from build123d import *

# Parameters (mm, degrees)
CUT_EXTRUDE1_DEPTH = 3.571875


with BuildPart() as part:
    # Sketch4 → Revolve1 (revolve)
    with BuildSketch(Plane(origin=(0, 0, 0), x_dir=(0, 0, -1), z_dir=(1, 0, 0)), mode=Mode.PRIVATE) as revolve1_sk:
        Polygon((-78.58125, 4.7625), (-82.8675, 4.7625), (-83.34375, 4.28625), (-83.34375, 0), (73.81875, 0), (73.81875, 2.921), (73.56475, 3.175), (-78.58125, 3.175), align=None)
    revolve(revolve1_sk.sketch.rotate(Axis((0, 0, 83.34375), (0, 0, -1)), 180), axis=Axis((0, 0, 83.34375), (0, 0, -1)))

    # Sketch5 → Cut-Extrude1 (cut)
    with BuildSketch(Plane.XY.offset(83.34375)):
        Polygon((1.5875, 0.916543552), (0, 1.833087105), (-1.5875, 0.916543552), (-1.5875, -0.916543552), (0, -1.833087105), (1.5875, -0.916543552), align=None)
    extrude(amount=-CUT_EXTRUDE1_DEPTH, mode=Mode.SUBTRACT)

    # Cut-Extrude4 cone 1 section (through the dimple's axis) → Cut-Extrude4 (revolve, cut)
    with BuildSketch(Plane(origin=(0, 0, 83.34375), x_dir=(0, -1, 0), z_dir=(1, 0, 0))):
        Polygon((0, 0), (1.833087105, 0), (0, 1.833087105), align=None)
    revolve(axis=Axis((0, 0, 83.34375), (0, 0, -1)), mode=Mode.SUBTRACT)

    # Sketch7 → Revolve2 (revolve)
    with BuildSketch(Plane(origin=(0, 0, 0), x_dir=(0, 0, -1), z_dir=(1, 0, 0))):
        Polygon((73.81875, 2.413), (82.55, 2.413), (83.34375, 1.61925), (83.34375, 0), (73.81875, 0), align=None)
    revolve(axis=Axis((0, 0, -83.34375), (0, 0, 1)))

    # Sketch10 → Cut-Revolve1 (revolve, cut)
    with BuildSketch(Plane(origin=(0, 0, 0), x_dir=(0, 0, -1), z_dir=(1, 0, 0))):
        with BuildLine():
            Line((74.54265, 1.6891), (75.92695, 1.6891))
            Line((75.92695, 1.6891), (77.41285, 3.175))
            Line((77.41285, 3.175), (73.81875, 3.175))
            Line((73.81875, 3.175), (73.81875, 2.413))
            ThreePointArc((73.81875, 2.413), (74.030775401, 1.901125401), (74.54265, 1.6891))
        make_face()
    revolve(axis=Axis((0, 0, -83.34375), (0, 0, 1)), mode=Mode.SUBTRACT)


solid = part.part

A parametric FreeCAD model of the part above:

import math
import FreeCAD as App
import Part
import Sketcher
Q = App.Units.Quantity

doc = App.newDocument("Part")
body = doc.addObject("PartDesign::Body", "Body")

# Sketch on YZ plane
sketch1 = body.newObject("Sketcher::SketchObject", "Sketch")
sketch1.AttachmentSupport = (doc.getObject("YZ_Plane"), [""])
sketch1.MapMode = "FlatFace"
sketch1.addGeometry(Part.LineSegment(App.Vector(4.76, 78.58, 0), App.Vector(4.76, 82.87, 0)), False)
sketch1.addGeometry(Part.LineSegment(App.Vector(4.76, 82.87, 0), App.Vector(4.29, 83.34, 0)), False)
sketch1.addGeometry(Part.LineSegment(App.Vector(4.29, 83.34, 0), App.Vector(0, 83.34, 0)), False)
sketch1.addGeometry(Part.LineSegment(App.Vector(0, 83.34, 0), App.Vector(0, -73.82, 0)), False)
sketch1.addGeometry(Part.LineSegment(App.Vector(0, -73.82, 0), App.Vector(2.92, -73.82, 0)), False)
sketch1.addGeometry(Part.LineSegment(App.Vector(2.92, -73.82, 0), App.Vector(3.17, -73.56, 0)), False)
sketch1.addGeometry(Part.LineSegment(App.Vector(3.17, -73.56, 0), App.Vector(3.17, 78.58, 0)), False)
sketch1.addGeometry(Part.LineSegment(App.Vector(3.17, 78.58, 0), App.Vector(4.76, 78.58, 0)), False)
sketch1.addConstraint(Sketcher.Constraint("Coincident", 0, 2, 1, 1))
sketch1.addConstraint(Sketcher.Constraint("Coincident", 1, 2, 2, 1))
sketch1.addConstraint(Sketcher.Constraint("Coincident", 2, 2, 3, 1))
sketch1.addConstraint(Sketcher.Constraint("Coincident", 3, 2, 4, 1))
sketch1.addConstraint(Sketcher.Constraint("Coincident", 4, 2, 5, 1))
sketch1.addConstraint(Sketcher.Constraint("Coincident", 5, 2, 6, 1))
sketch1.addConstraint(Sketcher.Constraint("Coincident", 6, 2, 7, 1))
sketch1.addConstraint(Sketcher.Constraint("Coincident", 7, 2, 0, 1))
sketch1.addConstraint(Sketcher.Constraint("Vertical", 0))
sketch1.addConstraint(Sketcher.Constraint("Horizontal", 2))
sketch1.addConstraint(Sketcher.Constraint("Vertical", 3))
sketch1.addConstraint(Sketcher.Constraint("Horizontal", 4))
sketch1.addConstraint(Sketcher.Constraint("Vertical", 6))
sketch1.addConstraint(Sketcher.Constraint("Horizontal", 7))
sketch1.addConstraint(Sketcher.Constraint("PointOnObject", 2, 2, -2))
sketch1.addConstraint(Sketcher.Constraint("Perpendicular", 1, 5))
sketch1.addConstraint(Sketcher.Constraint("Equal", 2, 0))
sketch1.addConstraint(Sketcher.Constraint("Angle", 1, Q("135 deg")))
sketch1.addConstraint(Sketcher.Constraint("DistanceY", 4, 2, 6, 2, Q("6 in")))
sketch1.addConstraint(Sketcher.Constraint("DistanceY", 6, 1, 6, 2, Q("5.99 in")))
sketch1.addConstraint(Sketcher.Constraint("DistanceX", 4, 1, 4, 2, Q("0.115 in")))
sketch1.addConstraint(Sketcher.Constraint("DistanceX", 7, 1, 7, 2, Q("0.0625 in")))
sketch1.addConstraint(Sketcher.Constraint("DistanceY", -1, 1, 1, 2, Q("3.28125 in")))
sketch1.addConstraint(Sketcher.Constraint("DistanceY", -1, 1, 0, 2, Q("3.2625 in")))
revolution = body.newObject("PartDesign::Revolution", "Revolution")
revolution.Profile = sketch1
revolution.ReferenceAxis = (sketch1, ["V_Axis"])
revolution.Angle = 360

# Sketch on XY plane
sketch2 = body.newObject("Sketcher::SketchObject", "Sketch001")
sketch2.AttachmentSupport = (doc.getObject("XY_Plane"), [""])
sketch2.MapMode = "FlatFace"
sketch2.AttachmentOffset = App.Placement(App.Vector(0, 0, 3.28125 * 25.4), App.Rotation())
sketch2.addGeometry(Part.LineSegment(App.Vector(1.6, 0.9, 0), App.Vector(0, 1.8, 0)), False)
sketch2.addGeometry(Part.LineSegment(App.Vector(0, 1.8, 0), App.Vector(-1.6, 0.9, 0)), False)
sketch2.addGeometry(Part.LineSegment(App.Vector(-1.6, 0.9, 0), App.Vector(-1.6, -0.9, 0)), False)
sketch2.addGeometry(Part.LineSegment(App.Vector(-1.6, -0.9, 0), App.Vector(0, -1.8, 0)), False)
sketch2.addGeometry(Part.LineSegment(App.Vector(0, -1.8, 0), App.Vector(1.6, -0.9, 0)), False)
sketch2.addGeometry(Part.LineSegment(App.Vector(1.6, -0.9, 0), App.Vector(1.6, 0.9, 0)), False)
sketch2.addConstraint(Sketcher.Constraint("Coincident", 0, 2, 1, 1))
sketch2.addConstraint(Sketcher.Constraint("Coincident", 1, 2, 2, 1))
sketch2.addConstraint(Sketcher.Constraint("Coincident", 2, 2, 3, 1))
sketch2.addConstraint(Sketcher.Constraint("Coincident", 3, 2, 4, 1))
sketch2.addConstraint(Sketcher.Constraint("Coincident", 4, 2, 5, 1))
sketch2.addConstraint(Sketcher.Constraint("Coincident", 5, 2, 0, 1))
sketch2.addConstraint(Sketcher.Constraint("Vertical", 2))
sketch2.addConstraint(Sketcher.Constraint("Vertical", 5))
sketch2.addConstraint(Sketcher.Constraint("Symmetric", 0, 2, 3, 2, -1, 1))
sketch2.addConstraint(Sketcher.Constraint("Symmetric", 1, 2, 4, 2, -1, 1))
sketch2.addConstraint(Sketcher.Constraint("PointOnObject", 0, 2, -2))
sketch2.addConstraint(Sketcher.Constraint("Parallel", 0, 3))
sketch2.addConstraint(Sketcher.Constraint("Horizontal", 2, 2, 4, 2))
sketch2.addConstraint(Sketcher.Constraint("Angle", 0, Q("150 deg")))
sketch2.addConstraint(Sketcher.Constraint("DistanceX", 1, 2, -1, 1, Q("0.0625 in")))
sketch2.addConstraint(Sketcher.Constraint("DistanceY", 2, 2, 2, 1, 1.833087))
pocket1 = body.newObject("PartDesign::Pocket", "Pocket")
pocket1.Profile = sketch2
pocket1.Length = Q("0.140625 in")

# Sketch on YZ plane
sketch3 = body.newObject("Sketcher::SketchObject", "Sketch002")
sketch3.AttachmentSupport = (doc.getObject("YZ_Plane"), [""])
sketch3.MapMode = "FlatFace"
sketch3.addGeometry(Part.LineSegment(App.Vector(0, 83.3, 0), App.Vector(-1.8, 83.3, 0)), False)
sketch3.addGeometry(Part.LineSegment(App.Vector(-1.8, 83.3, 0), App.Vector(0, 81.5, 0)), False)
sketch3.addGeometry(Part.LineSegment(App.Vector(0, 81.5, 0), App.Vector(0, 83.3, 0)), False)
sketch3.addConstraint(Sketcher.Constraint("Coincident", 0, 2, 1, 1))
sketch3.addConstraint(Sketcher.Constraint("Coincident", 1, 2, 2, 1))
sketch3.addConstraint(Sketcher.Constraint("Coincident", 2, 2, 0, 1))
sketch3.addConstraint(Sketcher.Constraint("Horizontal", 0))
sketch3.addConstraint(Sketcher.Constraint("Vertical", 2))
sketch3.addConstraint(Sketcher.Constraint("PointOnObject", 1, 2, -2))
sketch3.addConstraint(Sketcher.Constraint("Equal", 0, 2))
sketch3.addConstraint(Sketcher.Constraint("DistanceY", -1, 1, 0, 2, Q("3.28125 in")))
sketch3.addConstraint(Sketcher.Constraint("DistanceX", 0, 2, 0, 1, 1.833087))
groove = body.newObject("PartDesign::Groove", "Groove")
groove.Profile = sketch3
groove.ReferenceAxis = (sketch3, ["V_Axis"])
groove.Angle = 360

# Sketch on YZ plane
sketch4 = body.newObject("Sketcher::SketchObject", "Sketch003")
sketch4.AttachmentSupport = (doc.getObject("YZ_Plane"), [""])
sketch4.MapMode = "FlatFace"
sketch4.addGeometry(Part.LineSegment(App.Vector(2.4, -82.5, 0), App.Vector(2.4, -73.8, 0)), False)
sketch4.addGeometry(Part.LineSegment(App.Vector(2.4, -73.8, 0), App.Vector(0, -73.8, 0)), False)
sketch4.addGeometry(Part.LineSegment(App.Vector(0, -73.8, 0), App.Vector(0, -83.3, 0)), False)
sketch4.addGeometry(Part.LineSegment(App.Vector(0, -83.3, 0), App.Vector(1.6, -83.3, 0)), False)
sketch4.addGeometry(Part.LineSegment(App.Vector(1.6, -83.3, 0), App.Vector(2.4, -82.5, 0)), False)
sketch4.addConstraint(Sketcher.Constraint("Coincident", 0, 2, 1, 1))
sketch4.addConstraint(Sketcher.Constraint("Coincident", 1, 2, 2, 1))
sketch4.addConstraint(Sketcher.Constraint("Coincident", 2, 2, 3, 1))
sketch4.addConstraint(Sketcher.Constraint("Coincident", 3, 2, 4, 1))
sketch4.addConstraint(Sketcher.Constraint("Coincident", 4, 2, 0, 1))
sketch4.addConstraint(Sketcher.Constraint("Vertical", 0))
sketch4.addConstraint(Sketcher.Constraint("Horizontal", 1))
sketch4.addConstraint(Sketcher.Constraint("Vertical", 2))
sketch4.addConstraint(Sketcher.Constraint("Horizontal", 3))
sketch4.addConstraint(Sketcher.Constraint("PointOnObject", 1, 2, -2))
sketch4.addConstraint(Sketcher.Constraint("Angle", 4, Q("45 deg")))
sketch4.addConstraint(Sketcher.Constraint("DistanceX", 1, 2, 1, 1, Q("0.095 in")))
sketch4.addConstraint(Sketcher.Constraint("DistanceY", 0, 1, 0, 2, Q("0.34375 in")))
sketch4.addConstraint(Sketcher.Constraint("DistanceY", 2, 2, 2, 1, Q("0.375 in")))
sketch4.addConstraint(Sketcher.Constraint("DistanceY", 4, 2, -1, 1, Q("3.25 in")))
revolution2 = body.newObject("PartDesign::Revolution", "Revolution001")
revolution2.Profile = sketch4
revolution2.ReferenceAxis = (sketch4, ["V_Axis"])
revolution2.Angle = 360

# Sketch on YZ plane
sketch5 = body.newObject("Sketcher::SketchObject", "Sketch004")
sketch5.AttachmentSupport = (doc.getObject("YZ_Plane"), [""])
sketch5.MapMode = "FlatFace"
sketch5.addGeometry(Part.LineSegment(App.Vector(1.7, -74.5, 0), App.Vector(1.7, -75.9, 0)), False)
sketch5.addGeometry(Part.LineSegment(App.Vector(1.7, -75.9, 0), App.Vector(3.2, -77.4, 0)), False)
sketch5.addGeometry(Part.LineSegment(App.Vector(3.2, -77.4, 0), App.Vector(3.2, -73.8, 0)), False)
sketch5.addGeometry(Part.LineSegment(App.Vector(3.2, -73.8, 0), App.Vector(2.4, -73.8, 0)), False)
sketch5.addGeometry(Part.ArcOfCircle(Part.Circle(App.Vector(2.4, -74.5, 0), App.Vector(0, 0, 1), 0.7), math.radians(90), math.radians(180)), False)
sketch5.addConstraint(Sketcher.Constraint("Coincident", 0, 2, 1, 1))
sketch5.addConstraint(Sketcher.Constraint("Coincident", 1, 2, 2, 1))
sketch5.addConstraint(Sketcher.Constraint("Coincident", 2, 2, 3, 1))
sketch5.addConstraint(Sketcher.Constraint("Tangent", 3, 2, 4, 1))
sketch5.addConstraint(Sketcher.Constraint("Tangent", 4, 2, 0, 1))
sketch5.addConstraint(Sketcher.Constraint("Vertical", 0))
sketch5.addConstraint(Sketcher.Constraint("Vertical", 2))
sketch5.addConstraint(Sketcher.Constraint("Horizontal", 3))
sketch5.addConstraint(Sketcher.Constraint("Angle", 1, Q("-45 deg")))
sketch5.addConstraint(Sketcher.Constraint("DistanceX", 3, 2, 3, 1, Q("0.03 in")))
sketch5.addConstraint(Sketcher.Constraint("Radius", 4, Q("0.0285 in")))
sketch5.addConstraint(Sketcher.Constraint("DistanceY", 0, 2, 0, 1, Q("0.0545 in")))
sketch5.addConstraint(Sketcher.Constraint("DistanceX", -1, 1, 4, 3, Q("0.095 in")))
sketch5.addConstraint(Sketcher.Constraint("DistanceY", 2, 2, -1, 1, Q("2.90625 in")))
groove2 = body.newObject("PartDesign::Groove", "Groove001")
groove2.Profile = sketch5
groove2.ReferenceAxis = (sketch5, ["V_Axis"])
groove2.Angle = 360

doc.recompute()
